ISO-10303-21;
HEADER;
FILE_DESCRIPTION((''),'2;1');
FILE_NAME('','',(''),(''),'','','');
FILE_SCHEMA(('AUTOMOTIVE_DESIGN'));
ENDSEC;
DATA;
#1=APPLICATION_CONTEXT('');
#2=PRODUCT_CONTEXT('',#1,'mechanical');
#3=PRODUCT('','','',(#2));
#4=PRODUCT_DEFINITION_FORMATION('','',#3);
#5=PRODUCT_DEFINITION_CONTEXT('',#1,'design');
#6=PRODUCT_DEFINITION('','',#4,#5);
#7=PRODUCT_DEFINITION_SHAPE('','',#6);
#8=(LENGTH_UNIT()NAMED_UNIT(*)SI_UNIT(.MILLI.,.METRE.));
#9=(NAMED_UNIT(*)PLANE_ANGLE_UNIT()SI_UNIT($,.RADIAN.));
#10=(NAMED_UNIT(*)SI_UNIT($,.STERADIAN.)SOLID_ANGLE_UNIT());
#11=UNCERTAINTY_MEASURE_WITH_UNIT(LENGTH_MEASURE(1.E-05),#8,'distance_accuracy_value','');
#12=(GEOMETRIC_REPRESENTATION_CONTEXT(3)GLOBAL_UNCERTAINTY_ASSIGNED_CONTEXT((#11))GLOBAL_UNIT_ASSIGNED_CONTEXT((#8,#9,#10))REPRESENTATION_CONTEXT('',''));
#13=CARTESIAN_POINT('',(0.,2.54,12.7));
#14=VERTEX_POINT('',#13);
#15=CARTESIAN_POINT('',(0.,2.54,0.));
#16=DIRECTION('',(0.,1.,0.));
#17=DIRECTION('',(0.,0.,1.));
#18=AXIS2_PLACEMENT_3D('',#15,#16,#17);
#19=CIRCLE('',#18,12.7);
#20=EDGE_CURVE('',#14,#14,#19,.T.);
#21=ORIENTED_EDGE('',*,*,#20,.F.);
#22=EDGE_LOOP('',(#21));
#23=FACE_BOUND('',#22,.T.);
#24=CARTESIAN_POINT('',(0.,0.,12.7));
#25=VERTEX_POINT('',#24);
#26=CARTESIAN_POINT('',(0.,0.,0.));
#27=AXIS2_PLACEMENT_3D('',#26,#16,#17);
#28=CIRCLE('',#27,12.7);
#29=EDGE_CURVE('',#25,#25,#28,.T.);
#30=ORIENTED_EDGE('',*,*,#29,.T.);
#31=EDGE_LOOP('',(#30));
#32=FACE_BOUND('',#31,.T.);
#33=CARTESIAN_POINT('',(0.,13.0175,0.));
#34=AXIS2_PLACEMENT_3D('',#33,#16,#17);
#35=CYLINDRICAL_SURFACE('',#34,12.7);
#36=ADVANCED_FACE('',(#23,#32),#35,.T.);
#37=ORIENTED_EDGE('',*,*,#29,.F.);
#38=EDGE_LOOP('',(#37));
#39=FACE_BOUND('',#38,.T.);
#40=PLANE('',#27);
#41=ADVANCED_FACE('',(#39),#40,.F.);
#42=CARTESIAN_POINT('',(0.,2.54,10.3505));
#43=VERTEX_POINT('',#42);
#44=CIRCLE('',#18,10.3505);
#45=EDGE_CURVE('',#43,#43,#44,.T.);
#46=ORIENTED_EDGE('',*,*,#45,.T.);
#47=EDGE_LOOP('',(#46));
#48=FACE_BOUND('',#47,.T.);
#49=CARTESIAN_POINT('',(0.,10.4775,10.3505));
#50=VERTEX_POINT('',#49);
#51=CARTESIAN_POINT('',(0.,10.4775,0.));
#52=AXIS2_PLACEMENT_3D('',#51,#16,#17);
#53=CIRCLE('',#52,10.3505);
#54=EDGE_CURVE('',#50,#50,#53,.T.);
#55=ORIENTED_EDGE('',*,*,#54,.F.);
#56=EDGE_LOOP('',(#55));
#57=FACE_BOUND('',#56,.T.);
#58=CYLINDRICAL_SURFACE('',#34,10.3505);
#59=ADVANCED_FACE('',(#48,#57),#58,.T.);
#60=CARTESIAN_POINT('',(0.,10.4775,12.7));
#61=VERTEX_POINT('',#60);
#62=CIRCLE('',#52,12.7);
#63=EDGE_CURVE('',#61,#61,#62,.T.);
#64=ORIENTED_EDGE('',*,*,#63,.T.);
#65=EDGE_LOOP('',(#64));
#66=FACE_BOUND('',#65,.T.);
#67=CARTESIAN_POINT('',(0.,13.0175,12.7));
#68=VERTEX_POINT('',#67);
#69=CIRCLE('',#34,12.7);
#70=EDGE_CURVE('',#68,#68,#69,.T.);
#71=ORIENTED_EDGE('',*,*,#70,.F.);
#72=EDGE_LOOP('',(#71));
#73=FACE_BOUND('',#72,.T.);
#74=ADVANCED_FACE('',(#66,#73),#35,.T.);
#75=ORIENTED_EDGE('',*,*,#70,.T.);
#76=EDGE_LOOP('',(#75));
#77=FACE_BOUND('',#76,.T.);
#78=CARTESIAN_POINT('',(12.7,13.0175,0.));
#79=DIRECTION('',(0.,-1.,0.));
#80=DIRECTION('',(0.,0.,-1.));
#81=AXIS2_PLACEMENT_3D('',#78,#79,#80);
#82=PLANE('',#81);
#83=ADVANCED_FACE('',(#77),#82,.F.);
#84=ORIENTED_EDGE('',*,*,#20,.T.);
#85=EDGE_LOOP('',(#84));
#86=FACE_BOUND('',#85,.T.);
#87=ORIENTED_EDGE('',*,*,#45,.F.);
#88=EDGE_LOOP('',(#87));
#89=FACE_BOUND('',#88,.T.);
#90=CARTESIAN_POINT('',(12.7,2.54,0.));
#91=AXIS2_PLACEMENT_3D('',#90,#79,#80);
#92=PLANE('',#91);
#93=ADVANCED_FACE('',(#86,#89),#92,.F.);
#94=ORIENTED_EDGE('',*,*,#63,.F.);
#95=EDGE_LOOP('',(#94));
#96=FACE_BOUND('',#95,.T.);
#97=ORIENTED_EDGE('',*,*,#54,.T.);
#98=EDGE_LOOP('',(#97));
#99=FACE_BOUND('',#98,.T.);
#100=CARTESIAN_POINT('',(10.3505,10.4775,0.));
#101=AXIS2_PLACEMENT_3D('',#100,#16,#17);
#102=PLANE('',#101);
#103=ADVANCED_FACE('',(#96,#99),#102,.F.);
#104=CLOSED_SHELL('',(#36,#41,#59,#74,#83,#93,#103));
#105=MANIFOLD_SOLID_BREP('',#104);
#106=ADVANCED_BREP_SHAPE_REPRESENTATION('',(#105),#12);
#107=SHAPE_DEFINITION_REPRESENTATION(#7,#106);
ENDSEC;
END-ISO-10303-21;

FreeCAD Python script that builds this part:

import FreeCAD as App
import Part
import Sketcher

V = App.Vector
Q = App.Units.Quantity


def add_polygon(sketch, points):
    """Adds a closed chain of lines whose ends are joined by coincident constraints."""
    first, n = sketch.GeometryCount, len(points)
    for a, b in zip(points, points[1:] + points[:1]):
        sketch.addGeometry(Part.LineSegment(App.Vector(*a, 0), App.Vector(*b, 0)), False)
    for i in range(n):
        sketch.addConstraint(Sketcher.Constraint("Coincident", first + i, 2, first + (i + 1) % n, 1))

doc = App.newDocument("Part")
body = doc.addObject("PartDesign::Body", "Body")

sketch1 = body.newObject("Sketcher::SketchObject", "Sketch")
sketch1.AttachmentSupport = (doc.getObject("XY_Plane"), [""])
sketch1.MapMode = "FlatFace"
add_polygon(sketch1, [(0, 0), (12.7, 0), (12.7, 2.54), (10.3505, 2.54), (10.3505, 10.4775), (12.7, 10.4775), (12.7, 13.0175), (0, 13.0175)])
sketch1.addConstraint([
    Sketcher.Constraint("Horizontal", 0),
    Sketcher.Constraint("Vertical", 1),
    Sketcher.Constraint("Horizontal", 2),
    Sketcher.Constraint("Vertical", 3),
    Sketcher.Constraint("Horizontal", 4),
    Sketcher.Constraint("Vertical", 5),
    Sketcher.Constraint("Horizontal", 6),
    Sketcher.Constraint("Vertical", 7),
    Sketcher.Constraint("Coincident", 7, 2, -1, 1),
    Sketcher.Constraint("Vertical", 1, 2, 4, 2),
    Sketcher.Constraint("Equal", 1, 5),
    Sketcher.Constraint("DistanceX", 0, 1, 0, 2, Q("0.5 in")),
    Sketcher.Constraint("DistanceY", 1, 1, 1, 2, Q("0.1 in")),
    Sketcher.Constraint("DistanceY", 3, 1, 3, 2, Q("0.3125 in")),
    Sketcher.Constraint("DistanceX", 2, 2, 2, 1, Q("0.0925 in")),
])
revolution = body.newObject("PartDesign::Revolution", "Revolution")
revolution.Profile = sketch1
revolution.ReferenceAxis = (sketch1, ["V_Axis"])
revolution.Angle = 360

doc.recompute()
